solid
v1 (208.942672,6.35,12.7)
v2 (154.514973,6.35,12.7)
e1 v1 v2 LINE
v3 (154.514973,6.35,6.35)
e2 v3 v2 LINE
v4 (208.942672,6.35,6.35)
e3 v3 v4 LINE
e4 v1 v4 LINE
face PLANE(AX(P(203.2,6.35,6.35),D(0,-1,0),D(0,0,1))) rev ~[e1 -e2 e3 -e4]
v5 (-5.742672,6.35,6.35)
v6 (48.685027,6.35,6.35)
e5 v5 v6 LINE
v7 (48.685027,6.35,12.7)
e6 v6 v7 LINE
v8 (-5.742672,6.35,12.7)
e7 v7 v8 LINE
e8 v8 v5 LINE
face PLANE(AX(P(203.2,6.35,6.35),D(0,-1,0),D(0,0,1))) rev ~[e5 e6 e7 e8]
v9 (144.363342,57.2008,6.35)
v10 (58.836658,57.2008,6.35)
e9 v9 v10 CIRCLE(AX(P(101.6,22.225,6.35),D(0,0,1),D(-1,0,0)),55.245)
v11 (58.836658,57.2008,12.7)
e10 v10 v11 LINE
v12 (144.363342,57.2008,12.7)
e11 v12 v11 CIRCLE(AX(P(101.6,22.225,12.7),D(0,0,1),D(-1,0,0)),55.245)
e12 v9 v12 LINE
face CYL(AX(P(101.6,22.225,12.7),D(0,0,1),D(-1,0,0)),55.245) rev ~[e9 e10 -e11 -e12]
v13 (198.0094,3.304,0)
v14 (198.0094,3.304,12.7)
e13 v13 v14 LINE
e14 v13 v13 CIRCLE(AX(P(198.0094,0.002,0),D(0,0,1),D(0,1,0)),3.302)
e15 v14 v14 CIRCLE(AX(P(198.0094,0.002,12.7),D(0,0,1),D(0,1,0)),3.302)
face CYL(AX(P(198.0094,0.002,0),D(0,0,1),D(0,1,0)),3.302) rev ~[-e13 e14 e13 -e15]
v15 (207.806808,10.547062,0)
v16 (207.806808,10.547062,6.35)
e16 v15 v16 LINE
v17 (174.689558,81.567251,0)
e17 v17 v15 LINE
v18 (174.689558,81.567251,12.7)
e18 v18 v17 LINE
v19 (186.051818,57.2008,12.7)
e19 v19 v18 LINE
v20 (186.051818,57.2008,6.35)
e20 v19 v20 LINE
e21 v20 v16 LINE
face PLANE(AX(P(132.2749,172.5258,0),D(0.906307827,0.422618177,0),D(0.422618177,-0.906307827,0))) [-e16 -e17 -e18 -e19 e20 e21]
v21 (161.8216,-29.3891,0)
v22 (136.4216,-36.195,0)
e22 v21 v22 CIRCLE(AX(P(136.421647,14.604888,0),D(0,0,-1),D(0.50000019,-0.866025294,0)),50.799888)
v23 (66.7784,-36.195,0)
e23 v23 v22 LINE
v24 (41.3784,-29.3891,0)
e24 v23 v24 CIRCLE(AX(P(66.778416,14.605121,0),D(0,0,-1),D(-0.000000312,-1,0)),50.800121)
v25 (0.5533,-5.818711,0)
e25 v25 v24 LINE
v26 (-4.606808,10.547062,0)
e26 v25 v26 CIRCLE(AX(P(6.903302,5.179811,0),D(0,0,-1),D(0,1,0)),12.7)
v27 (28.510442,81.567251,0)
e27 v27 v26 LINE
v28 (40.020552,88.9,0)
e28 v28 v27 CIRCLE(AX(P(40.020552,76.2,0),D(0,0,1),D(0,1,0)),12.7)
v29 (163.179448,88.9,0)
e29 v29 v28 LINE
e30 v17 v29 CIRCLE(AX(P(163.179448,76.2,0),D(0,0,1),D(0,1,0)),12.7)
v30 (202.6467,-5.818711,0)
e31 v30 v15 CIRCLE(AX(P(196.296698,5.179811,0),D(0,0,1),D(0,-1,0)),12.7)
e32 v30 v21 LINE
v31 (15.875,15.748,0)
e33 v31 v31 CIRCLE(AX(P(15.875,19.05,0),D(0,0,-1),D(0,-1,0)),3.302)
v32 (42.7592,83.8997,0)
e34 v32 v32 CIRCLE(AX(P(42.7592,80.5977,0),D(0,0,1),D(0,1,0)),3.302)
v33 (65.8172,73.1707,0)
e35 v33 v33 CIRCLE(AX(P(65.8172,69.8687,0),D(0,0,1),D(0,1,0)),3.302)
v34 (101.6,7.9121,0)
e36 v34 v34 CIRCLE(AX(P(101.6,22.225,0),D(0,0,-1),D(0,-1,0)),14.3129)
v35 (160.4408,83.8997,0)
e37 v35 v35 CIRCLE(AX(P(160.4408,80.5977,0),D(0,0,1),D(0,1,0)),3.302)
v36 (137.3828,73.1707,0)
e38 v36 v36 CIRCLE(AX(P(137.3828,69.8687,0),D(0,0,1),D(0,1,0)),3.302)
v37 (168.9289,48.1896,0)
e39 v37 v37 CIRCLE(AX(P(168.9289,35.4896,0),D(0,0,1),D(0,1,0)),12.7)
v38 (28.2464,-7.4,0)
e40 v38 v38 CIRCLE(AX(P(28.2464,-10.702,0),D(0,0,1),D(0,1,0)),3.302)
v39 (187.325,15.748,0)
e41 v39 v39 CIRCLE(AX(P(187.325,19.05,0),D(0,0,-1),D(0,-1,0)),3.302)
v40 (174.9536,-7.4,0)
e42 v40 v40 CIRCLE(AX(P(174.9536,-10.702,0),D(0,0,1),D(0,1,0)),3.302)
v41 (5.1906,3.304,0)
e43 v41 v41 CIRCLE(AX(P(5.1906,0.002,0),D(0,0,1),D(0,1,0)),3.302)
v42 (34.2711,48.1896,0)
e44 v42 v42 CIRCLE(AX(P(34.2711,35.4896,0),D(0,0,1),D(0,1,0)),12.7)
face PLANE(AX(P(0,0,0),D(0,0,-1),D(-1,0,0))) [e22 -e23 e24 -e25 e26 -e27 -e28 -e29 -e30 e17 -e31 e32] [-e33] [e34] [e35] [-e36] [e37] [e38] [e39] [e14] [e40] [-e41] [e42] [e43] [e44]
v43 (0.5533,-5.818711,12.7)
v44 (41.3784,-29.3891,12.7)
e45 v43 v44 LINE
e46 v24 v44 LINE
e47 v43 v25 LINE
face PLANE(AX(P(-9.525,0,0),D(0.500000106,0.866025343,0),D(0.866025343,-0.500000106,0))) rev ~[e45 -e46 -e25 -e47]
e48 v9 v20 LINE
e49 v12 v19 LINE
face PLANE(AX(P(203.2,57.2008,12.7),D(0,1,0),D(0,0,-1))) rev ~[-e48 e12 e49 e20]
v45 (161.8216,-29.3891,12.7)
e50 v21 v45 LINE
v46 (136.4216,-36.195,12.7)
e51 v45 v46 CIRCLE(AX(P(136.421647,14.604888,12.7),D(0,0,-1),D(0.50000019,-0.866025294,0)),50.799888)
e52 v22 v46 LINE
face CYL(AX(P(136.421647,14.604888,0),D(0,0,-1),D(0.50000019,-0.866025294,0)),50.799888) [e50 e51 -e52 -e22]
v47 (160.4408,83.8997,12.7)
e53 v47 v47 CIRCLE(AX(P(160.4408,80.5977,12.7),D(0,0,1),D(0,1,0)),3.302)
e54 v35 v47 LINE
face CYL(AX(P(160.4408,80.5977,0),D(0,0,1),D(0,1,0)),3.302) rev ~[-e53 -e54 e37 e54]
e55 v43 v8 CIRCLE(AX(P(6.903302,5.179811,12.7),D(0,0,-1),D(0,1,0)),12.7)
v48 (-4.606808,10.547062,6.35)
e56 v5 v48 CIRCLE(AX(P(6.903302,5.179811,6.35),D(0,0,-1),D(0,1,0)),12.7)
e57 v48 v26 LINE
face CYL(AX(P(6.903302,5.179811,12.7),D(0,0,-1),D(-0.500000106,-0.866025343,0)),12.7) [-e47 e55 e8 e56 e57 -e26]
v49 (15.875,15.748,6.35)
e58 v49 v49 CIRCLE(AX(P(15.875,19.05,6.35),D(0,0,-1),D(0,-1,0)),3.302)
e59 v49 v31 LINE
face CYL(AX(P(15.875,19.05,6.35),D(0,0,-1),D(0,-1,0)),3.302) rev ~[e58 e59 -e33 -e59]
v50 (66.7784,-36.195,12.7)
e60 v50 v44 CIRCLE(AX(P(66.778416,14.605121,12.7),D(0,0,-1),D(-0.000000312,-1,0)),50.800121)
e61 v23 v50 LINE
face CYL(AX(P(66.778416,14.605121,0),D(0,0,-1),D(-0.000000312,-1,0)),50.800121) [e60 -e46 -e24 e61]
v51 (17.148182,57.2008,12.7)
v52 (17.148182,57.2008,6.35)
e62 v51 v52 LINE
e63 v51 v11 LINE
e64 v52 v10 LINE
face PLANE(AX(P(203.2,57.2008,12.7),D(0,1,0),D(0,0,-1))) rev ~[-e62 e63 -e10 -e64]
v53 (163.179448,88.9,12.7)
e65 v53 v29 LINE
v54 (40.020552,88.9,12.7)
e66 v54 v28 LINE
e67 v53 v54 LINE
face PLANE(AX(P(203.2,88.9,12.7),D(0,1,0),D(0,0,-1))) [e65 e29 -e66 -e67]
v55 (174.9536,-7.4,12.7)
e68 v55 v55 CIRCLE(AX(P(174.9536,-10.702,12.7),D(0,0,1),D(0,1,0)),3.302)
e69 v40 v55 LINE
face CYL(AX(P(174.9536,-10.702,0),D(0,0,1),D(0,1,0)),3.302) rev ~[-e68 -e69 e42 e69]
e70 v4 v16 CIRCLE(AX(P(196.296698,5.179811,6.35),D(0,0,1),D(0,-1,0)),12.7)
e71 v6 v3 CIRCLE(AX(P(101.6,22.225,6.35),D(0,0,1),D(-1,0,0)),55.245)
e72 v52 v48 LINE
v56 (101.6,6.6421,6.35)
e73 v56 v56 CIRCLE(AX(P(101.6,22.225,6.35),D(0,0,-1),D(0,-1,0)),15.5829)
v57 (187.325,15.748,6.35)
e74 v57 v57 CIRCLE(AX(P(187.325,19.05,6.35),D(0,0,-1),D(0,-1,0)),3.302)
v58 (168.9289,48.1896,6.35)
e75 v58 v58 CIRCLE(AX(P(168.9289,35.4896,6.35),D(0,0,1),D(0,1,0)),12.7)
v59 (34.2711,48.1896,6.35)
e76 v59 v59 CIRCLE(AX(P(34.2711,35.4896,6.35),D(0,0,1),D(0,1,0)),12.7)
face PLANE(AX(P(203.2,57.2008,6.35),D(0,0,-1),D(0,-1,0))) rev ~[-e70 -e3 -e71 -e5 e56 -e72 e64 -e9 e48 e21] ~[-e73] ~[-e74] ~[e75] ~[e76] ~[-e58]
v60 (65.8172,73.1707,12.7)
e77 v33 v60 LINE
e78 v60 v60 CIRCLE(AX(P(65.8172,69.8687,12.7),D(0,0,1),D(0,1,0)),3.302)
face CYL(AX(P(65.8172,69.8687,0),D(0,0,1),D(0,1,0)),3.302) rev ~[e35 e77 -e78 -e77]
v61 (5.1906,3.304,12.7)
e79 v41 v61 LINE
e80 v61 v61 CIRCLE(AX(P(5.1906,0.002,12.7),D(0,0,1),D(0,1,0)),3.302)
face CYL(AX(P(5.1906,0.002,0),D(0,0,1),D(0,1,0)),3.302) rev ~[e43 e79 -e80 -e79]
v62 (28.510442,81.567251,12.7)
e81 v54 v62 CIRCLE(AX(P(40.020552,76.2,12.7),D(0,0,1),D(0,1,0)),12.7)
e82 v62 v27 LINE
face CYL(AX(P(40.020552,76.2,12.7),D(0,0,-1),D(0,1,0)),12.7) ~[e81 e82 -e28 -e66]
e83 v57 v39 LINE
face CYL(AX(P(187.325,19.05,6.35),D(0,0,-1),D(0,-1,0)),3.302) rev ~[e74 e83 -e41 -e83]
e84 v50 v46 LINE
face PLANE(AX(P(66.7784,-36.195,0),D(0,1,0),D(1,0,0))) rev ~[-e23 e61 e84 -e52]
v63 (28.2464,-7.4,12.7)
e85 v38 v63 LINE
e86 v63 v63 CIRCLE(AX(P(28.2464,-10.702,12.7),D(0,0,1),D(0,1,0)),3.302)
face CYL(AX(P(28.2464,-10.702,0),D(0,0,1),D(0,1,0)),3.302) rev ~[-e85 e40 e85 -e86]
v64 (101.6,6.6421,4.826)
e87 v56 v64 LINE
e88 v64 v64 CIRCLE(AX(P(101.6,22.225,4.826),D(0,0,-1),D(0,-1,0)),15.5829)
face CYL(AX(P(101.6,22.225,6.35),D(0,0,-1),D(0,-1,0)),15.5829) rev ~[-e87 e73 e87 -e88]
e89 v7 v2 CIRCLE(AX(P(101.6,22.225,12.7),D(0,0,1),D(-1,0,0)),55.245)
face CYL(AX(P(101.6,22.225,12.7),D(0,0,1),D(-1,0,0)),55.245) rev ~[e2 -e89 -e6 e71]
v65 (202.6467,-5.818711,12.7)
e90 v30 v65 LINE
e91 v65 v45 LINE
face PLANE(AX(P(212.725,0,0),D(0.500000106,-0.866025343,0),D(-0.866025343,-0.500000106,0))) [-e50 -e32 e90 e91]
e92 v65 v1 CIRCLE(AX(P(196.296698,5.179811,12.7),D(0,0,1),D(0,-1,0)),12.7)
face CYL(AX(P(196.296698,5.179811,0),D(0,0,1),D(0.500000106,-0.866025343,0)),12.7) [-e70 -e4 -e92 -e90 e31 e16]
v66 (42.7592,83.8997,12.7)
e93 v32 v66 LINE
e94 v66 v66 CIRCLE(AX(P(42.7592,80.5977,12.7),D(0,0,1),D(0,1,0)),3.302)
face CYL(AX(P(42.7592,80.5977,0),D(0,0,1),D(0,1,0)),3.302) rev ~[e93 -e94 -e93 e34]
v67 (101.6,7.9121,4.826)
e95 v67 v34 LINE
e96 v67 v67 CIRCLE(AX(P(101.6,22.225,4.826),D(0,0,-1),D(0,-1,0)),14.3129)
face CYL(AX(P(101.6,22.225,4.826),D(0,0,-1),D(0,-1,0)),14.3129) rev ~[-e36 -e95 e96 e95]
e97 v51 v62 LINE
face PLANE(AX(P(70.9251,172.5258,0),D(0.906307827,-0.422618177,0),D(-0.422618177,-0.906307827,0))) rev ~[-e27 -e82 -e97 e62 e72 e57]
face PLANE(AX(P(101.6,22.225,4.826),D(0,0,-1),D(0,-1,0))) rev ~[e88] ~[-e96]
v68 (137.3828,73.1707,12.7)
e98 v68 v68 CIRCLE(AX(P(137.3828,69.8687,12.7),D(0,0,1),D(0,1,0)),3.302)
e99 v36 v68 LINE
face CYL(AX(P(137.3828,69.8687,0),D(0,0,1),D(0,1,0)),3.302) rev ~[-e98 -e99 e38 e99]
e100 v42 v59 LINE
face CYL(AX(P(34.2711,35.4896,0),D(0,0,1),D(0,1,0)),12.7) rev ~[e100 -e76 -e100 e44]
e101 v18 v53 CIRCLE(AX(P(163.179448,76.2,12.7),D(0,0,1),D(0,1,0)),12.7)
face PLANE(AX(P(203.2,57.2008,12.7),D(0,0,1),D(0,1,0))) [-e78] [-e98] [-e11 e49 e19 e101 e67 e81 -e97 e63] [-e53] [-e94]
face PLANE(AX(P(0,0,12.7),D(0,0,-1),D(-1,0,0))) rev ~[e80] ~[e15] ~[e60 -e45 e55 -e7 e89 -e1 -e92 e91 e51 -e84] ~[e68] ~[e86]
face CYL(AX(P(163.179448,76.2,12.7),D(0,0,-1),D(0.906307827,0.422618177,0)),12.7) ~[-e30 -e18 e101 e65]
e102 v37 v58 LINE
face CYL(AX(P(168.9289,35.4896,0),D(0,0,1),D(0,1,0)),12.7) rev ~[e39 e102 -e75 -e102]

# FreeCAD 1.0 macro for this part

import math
import FreeCAD as App
import Part
import Sketcher
Q = App.Units.Quantity


def edges_at(feature, points):
    """Names of the edges that pass closest to the given points."""
    edges = feature.Shape.Edges
    near = lambda p: min(range(len(edges)), key=lambda i: edges[i].distToShape(Part.Vertex(*p))[0])
    return sorted({f"Edge{near(p) + 1}" for p in points})

doc = App.newDocument("Part")
body = doc.addObject("PartDesign::Body", "Body")

sketch1 = body.newObject("Sketcher::SketchObject", "Sketch")
sketch1.AttachmentSupport = (doc.getObject("XY_Plane"), [""])
sketch1.MapMode = "FlatFace"
sketch1.addGeometry([
    Part.LineSegment(App.Vector(0, 64, 0), App.Vector(0, 0, 0)),
    Part.LineSegment(App.Vector(0, 0, 0), App.Vector(203, 0, 0)),
    Part.LineSegment(App.Vector(203, 0, 0), App.Vector(203, 64, 0)),
    Part.LineSegment(App.Vector(203, 64, 0), App.Vector(0, 64, 0)),
], False)
sketch1.addConstraint([
    Sketcher.Constraint("Coincident", 0, 2, 1, 1),
    Sketcher.Constraint("Coincident", 1, 2, 2, 1),
    Sketcher.Constraint("Coincident", 2, 2, 3, 1),
    Sketcher.Constraint("Coincident", 3, 2, 0, 1),
    Sketcher.Constraint("Vertical", 0),
    Sketcher.Constraint("Horizontal", 1),
    Sketcher.Constraint("Vertical", 2),
    Sketcher.Constraint("Horizontal", 3),
    Sketcher.Constraint("Coincident", 0, 2, -1, 1),
    Sketcher.Constraint("DistanceX", 1, 1, 1, 2, Q("8 in")),
    Sketcher.Constraint("DistanceY", 0, 2, 0, 1, Q("2.5 in")),
])
pad1 = body.newObject("PartDesign::Pad", "Pad")
pad1.Profile = sketch1
pad1.Length = Q("0.5 in")

sketch2 = body.newObject("Sketcher::SketchObject", "Sketch001")
sketch2.AttachmentSupport = (doc.getObject("XY_Plane"), [""])
sketch2.MapMode = "FlatFace"
sketch2.AttachmentOffset = App.Placement(App.Vector(0, 0, 0.5 * 25.4), App.Rotation())
sketch2.addGeometry([
    Part.LineSegment(App.Vector(203, 57, 0), App.Vector(0, 57, 0)),
    Part.LineSegment(App.Vector(0, 57, 0), App.Vector(0, 6, 0)),
    Part.LineSegment(App.Vector(0, 6, 0), App.Vector(203, 6, 0)),
    Part.LineSegment(App.Vector(203, 6, 0), App.Vector(203, 57, 0)),
], False)
sketch2.addConstraint([
    Sketcher.Constraint("Coincident", 0, 2, 1, 1),
    Sketcher.Constraint("Coincident", 1, 2, 2, 1),
    Sketcher.Constraint("Coincident", 2, 2, 3, 1),
    Sketcher.Constraint("Coincident", 3, 2, 0, 1),
    Sketcher.Constraint("Horizontal", 0),
    Sketcher.Constraint("Vertical", 1),
    Sketcher.Constraint("Horizontal", 2),
    Sketcher.Constraint("Vertical", 3),
    Sketcher.Constraint("PointOnObject", 0, 2, -2),
    Sketcher.Constraint("DistanceX", 0, 2, 0, 1, Q("8 in")),
    Sketcher.Constraint("DistanceY", -1, 1, 1, 2, Q("0.25 in")),
    Sketcher.Constraint("DistanceY", 1, 2, 1, 1, Q("2.002 in")),
])
pocket1 = body.newObject("PartDesign::Pocket", "Pocket")
pocket1.Profile = sketch2
pocket1.Length = Q("0.25 in")

sketch3 = body.newObject("Sketcher::SketchObject", "Sketch002")
sketch3.AttachmentSupport = (doc.getObject("XY_Plane"), [""])
sketch3.MapMode = "FlatFace"
sketch3.AttachmentOffset = App.Placement(App.Vector(0, 0, 0.25 * 25.4), App.Rotation())
sketch3.addGeometry(Part.Circle(App.Vector(102, 22, 0), App.Vector(0, 0, 1), 14), False)
sketch3.addConstraint([
    Sketcher.Constraint("Diameter", 0, Q("1.127 in")),
    Sketcher.Constraint("DistanceX", -1, 1, 0, 3, Q("4 in")),
    Sketcher.Constraint("DistanceY", -1, 1, 0, 3, Q("0.875 in")),
])
doc.recompute()
hole = body.newObject("PartDesign::Hole", "Hole")
hole.Profile = sketch3
hole.ThreadType = "None"
hole.Diameter = Q("1.127 in")
hole.DepthType = "ThroughAll"
hole.HoleCutType = "Counterbore"
hole.HoleCutDiameter = Q("1.227 in")
hole.HoleCutDepth = Q("0.06 in")

sketch4 = body.newObject("Sketcher::SketchObject", "Sketch003")
sketch4.AttachmentSupport = (doc.getObject("XY_Plane"), [""])
sketch4.MapMode = "FlatFace"
sketch4.addGeometry([
    Part.Circle(App.Vector(169, 35, 0), App.Vector(0, 0, 1), 13),
    Part.Circle(App.Vector(34, 35, 0), App.Vector(0, 0, 1), 13),
], False)
sketch4.addConstraint([
    Sketcher.Constraint("Equal", 0, 1),
    Sketcher.Constraint("Horizontal", 0, 3, 1, 3),
    Sketcher.Constraint("Diameter", 0, Q("1 in")),
    Sketcher.Constraint("DistanceX", 1, 3, 0, 3, Q("5.3015 in")),
    Sketcher.Constraint("DistanceX", -1, 1, 0, 3, 168.929),
    Sketcher.Constraint("DistanceY", -1, 1, 0, 3, 35.4896),
])
doc.recompute()
hole2 = body.newObject("PartDesign::Hole", "Hole001")
hole2.Profile = sketch4
hole2.ThreadType = "None"
hole2.Diameter = Q("1 in")
hole2.DepthType = "ThroughAll"
hole2.Reversed = True

sketch5 = body.newObject("Sketcher::SketchObject", "Sketch004")
sketch5.AttachmentSupport = (doc.getObject("XZ_Plane"), [""])
sketch5.MapMode = "FlatFace"
sketch5.AttachmentOffset = App.Placement(App.Vector(0, 0, -2.5 * 25.4), App.Rotation())
sketch5.addGeometry([
    Part.LineSegment(App.Vector(0, 0, 0), App.Vector(0, 13, 0)),
    Part.LineSegment(App.Vector(0, 13, 0), App.Vector(203, 13, 0)),
    Part.LineSegment(App.Vector(203, 13, 0), App.Vector(203, 0, 0)),
    Part.LineSegment(App.Vector(203, 0, 0), App.Vector(0, 0, 0)),
], False)
sketch5.addConstraint([
    Sketcher.Constraint("Coincident", 0, 2, 1, 1),
    Sketcher.Constraint("Coincident", 1, 2, 2, 1),
    Sketcher.Constraint("Coincident", 2, 2, 3, 1),
    Sketcher.Constraint("Coincident", 3, 2, 0, 1),
    Sketcher.Constraint("Vertical", 0),
    Sketcher.Constraint("Horizontal", 1),
    Sketcher.Constraint("Vertical", 2),
    Sketcher.Constraint("Horizontal", 3),
    Sketcher.Constraint("Coincident", 3, 2, -1, 1),
    Sketcher.Constraint("DistanceX", 1, 1, 1, 2, Q("8 in")),
    Sketcher.Constraint("DistanceY", 0, 1, 0, 2, Q("0.5 in")),
])
pad2 = body.newObject("PartDesign::Pad", "Pad001")
pad2.Profile = sketch5
pad2.Length = Q("1 in")
pad2.Reversed = True

sketch6 = body.newObject("Sketcher::SketchObject", "Sketch005")
sketch6.AttachmentSupport = (doc.getObject("YZ_Plane"), [""])
sketch6.MapMode = "FlatFace"
sketch6.addGeometry([
    Part.LineSegment(App.Vector(6, 6, 0), App.Vector(57, 6, 0)),
    Part.LineSegment(App.Vector(57, 6, 0), App.Vector(57, 13, 0)),
    Part.LineSegment(App.Vector(57, 13, 0), App.Vector(89, 13, 0)),
    Part.LineSegment(App.Vector(89, 13, 0), App.Vector(89, 0, 0)),
    Part.LineSegment(App.Vector(89, 0, 0), App.Vector(0, 0, 0)),
    Part.LineSegment(App.Vector(0, 0, 0), App.Vector(0, 13, 0)),
    Part.LineSegment(App.Vector(0, 13, 0), App.Vector(6, 13, 0)),
    Part.LineSegment(App.Vector(6, 13, 0), App.Vector(6, 6, 0)),
], False)
sketch6.addConstraint([
    Sketcher.Constraint("Coincident", 0, 2, 1, 1),
    Sketcher.Constraint("Coincident", 1, 2, 2, 1),
    Sketcher.Constraint("Coincident", 2, 2, 3, 1),
    Sketcher.Constraint("Coincident", 3, 2, 4, 1),
    Sketcher.Constraint("Coincident", 4, 2, 5, 1),
    Sketcher.Constraint("Coincident", 5, 2, 6, 1),
    Sketcher.Constraint("Coincident", 6, 2, 7, 1),
    Sketcher.Constraint("Coincident", 7, 2, 0, 1),
    Sketcher.Constraint("Horizontal", 0),
    Sketcher.Constraint("Vertical", 1),
    Sketcher.Constraint("Horizontal", 2),
    Sketcher.Constraint("Vertical", 3),
    Sketcher.Constraint("Horizontal", 4),
    Sketcher.Constraint("Vertical", 5),
    Sketcher.Constraint("Horizontal", 6),
    Sketcher.Constraint("Vertical", 7),
    Sketcher.Constraint("Coincident", 4, 2, -1, 1),
    Sketcher.Constraint("Horizontal", 2, 2, 5, 2),
    Sketcher.Constraint("Equal", 6, 1),
    Sketcher.Constraint("DistanceX", 4, 2, 4, 1, Q("3.5 in")),
    Sketcher.Constraint("DistanceY", 3, 2, 3, 1, Q("0.5 in")),
    Sketcher.Constraint("DistanceX", 6, 1, 6, 2, Q("0.25 in")),
    Sketcher.Constraint("DistanceX", 0, 1, 0, 2, Q("2.002 in")),
])
pad3 = body.newObject("PartDesign::Pad", "Pad002")
pad3.Profile = sketch6
pad3.Length = Q("0.375 in")
pad3.Reversed = True

sketch7 = body.newObject("Sketcher::SketchObject", "Sketch006")
sketch7.AttachmentSupport = (doc.getObject("YZ_Plane"), [""])
sketch7.MapMode = "FlatFace"
sketch7.AttachmentOffset = App.Placement(App.Vector(0, 0, 8 * 25.4), App.Rotation())
sketch7.addGeometry([
    Part.LineSegment(App.Vector(89, 13, 0), App.Vector(57, 13, 0)),
    Part.LineSegment(App.Vector(57, 13, 0), App.Vector(57, 6, 0)),
    Part.LineSegment(App.Vector(57, 6, 0), App.Vector(6, 6, 0)),
    Part.LineSegment(App.Vector(6, 6, 0), App.Vector(6, 13, 0)),
    Part.LineSegment(App.Vector(6, 13, 0), App.Vector(0, 13, 0)),
    Part.LineSegment(App.Vector(0, 13, 0), App.Vector(0, 0, 0)),
    Part.LineSegment(App.Vector(0, 0, 0), App.Vector(89, 0, 0)),
    Part.LineSegment(App.Vector(89, 0, 0), App.Vector(89, 13, 0)),
], False)
sketch7.addConstraint([
    Sketcher.Constraint("Coincident", 0, 2, 1, 1),
    Sketcher.Constraint("Coincident", 1, 2, 2, 1),
    Sketcher.Constraint("Coincident", 2, 2, 3, 1),
    Sketcher.Constraint("Coincident", 3, 2, 4, 1),
    Sketcher.Constraint("Coincident", 4, 2, 5, 1),
    Sketcher.Constraint("Coincident", 5, 2, 6, 1),
    Sketcher.Constraint("Coincident", 6, 2, 7, 1),
    Sketcher.Constraint("Coincident", 7, 2, 0, 1),
    Sketcher.Constraint("Horizontal", 0),
    Sketcher.Constraint("Vertical", 1),
    Sketcher.Constraint("Horizontal", 2),
    Sketcher.Constraint("Vertical", 3),
    Sketcher.Constraint("Horizontal", 4),
    Sketcher.Constraint("Vertical", 5),
    Sketcher.Constraint("Horizontal", 6),
    Sketcher.Constraint("Vertical", 7),
    Sketcher.Constraint("Coincident", 5, 2, -1, 1),
    Sketcher.Constraint("Horizontal", 0, 2, 3, 2),
    Sketcher.Constraint("Equal", 4, 1),
    Sketcher.Constraint("DistanceX", 6, 1, 6, 2, Q("3.5 in")),
    Sketcher.Constraint("DistanceY", 5, 2, 5, 1, Q("0.5 in")),
    Sketcher.Constraint("DistanceX", 4, 2, 4, 1, Q("0.25 in")),
    Sketcher.Constraint("DistanceX", 0, 2, 0, 1, Q("1.248 in")),
])
pad4 = body.newObject("PartDesign::Pad", "Pad003")
pad4.Profile = sketch7
pad4.Length = Q("0.375 in")

sketch8 = body.newObject("Sketcher::SketchObject", "Sketch007")
sketch8.AttachmentSupport = (doc.getObject("XY_Plane"), [""])
sketch8.MapMode = "FlatFace"
sketch8.addGeometry([
    Part.LineSegment(App.Vector(41, -29, 0), App.Vector(-10, 0, 0)),
    Part.LineSegment(App.Vector(-10, 0, 0), App.Vector(213, 0, 0)),
    Part.LineSegment(App.Vector(213, 0, 0), App.Vector(162, -29, 0)),
    Part.ArcOfCircle(Part.Circle(App.Vector(136, 15, 0), App.Vector(0, 0, 1), 51), math.radians(-90), math.radians(-60)),
    Part.LineSegment(App.Vector(136, -36, 0), App.Vector(67, -36, 0)),
    Part.ArcOfCircle(Part.Circle(App.Vector(67, 15, 0), App.Vector(0, 0, 1), 51), math.radians(-120), math.radians(-90)),
], False)
sketch8.addConstraint([
    Sketcher.Constraint("Coincident", 0, 2, 1, 1),
    Sketcher.Constraint("Coincident", 1, 2, 2, 1),
    Sketcher.Constraint("Tangent", 2, 2, 3, 2),
    Sketcher.Constraint("Tangent", 3, 1, 4, 1),
    Sketcher.Constraint("Tangent", 4, 2, 5, 2),
    Sketcher.Constraint("Tangent", 5, 1, 0, 1),
    Sketcher.Constraint("Horizontal", 1),
    Sketcher.Constraint("Horizontal", 4),
    Sketcher.Constraint("Equal", 3, 5),
    Sketcher.Constraint("PointOnObject", 0, 2, -1),
    Sketcher.Constraint("Horizontal", 2, 2, 5, 1),
    Sketcher.Constraint("Radius", 3, Q("2 in")),
    Sketcher.Constraint("Angle", 0, Q("150 deg")),
    Sketcher.Constraint("DistanceX", 1, 1, 1, 2, Q("8.75 in")),
    Sketcher.Constraint("DistanceY", -1, 1, 3, 3, Q("0.575 in")),
    Sketcher.Constraint("DistanceX", 0, 2, -1, 1, Q("0.375 in")),
])
pad5 = body.newObject("PartDesign::Pad", "Pad004")
pad5.Profile = sketch8
pad5.Length = Q("0.5 in")

sketch9 = body.newObject("Sketcher::SketchObject", "Sketch008")
sketch9.AttachmentSupport = (doc.getObject("XY_Plane"), [""])
sketch9.MapMode = "FlatFace"
sketch9.AttachmentOffset = App.Placement(App.Vector(0, 0, 0.5 * 25.4), App.Rotation())
sketch9.addGeometry([
    Part.Circle(App.Vector(102, 22, 0), App.Vector(0, 0, 1), 55),
    Part.Circle(App.Vector(102, 22, 0), App.Vector(0, 0, 1), 16),
], False)
sketch9.addConstraint([
    Sketcher.Constraint("Coincident", 1, 3, 0, 3),
    Sketcher.Constraint("Diameter", 0, Q("4.35 in")),
    Sketcher.Constraint("Diameter", 1, Q("1.227 in")),
    Sketcher.Constraint("DistanceX", -1, 1, 0, 3, Q("4 in")),
    Sketcher.Constraint("DistanceY", -1, 1, 0, 3, Q("0.875 in")),
])
pocket2 = body.newObject("PartDesign::Pocket", "Pocket001")
pocket2.Profile = sketch9
pocket2.Length = Q("0.25 in")
doc.recompute()

fillet = body.newObject("PartDesign::Fillet", "Fillet")
fillet.Base = (pocket2, edges_at(pocket2, [(-9.525, 88.9, 6.35), (212.725, 88.9, 6.35)]))
fillet.Radius = Q("0.5 in")

sketch10 = body.newObject("Sketcher::SketchObject", "Sketch009")
sketch10.AttachmentSupport = (doc.getObject("XY_Plane"), [""])
sketch10.MapMode = "FlatFace"
sketch10.addGeometry([
    Part.Circle(App.Vector(42.8, 80.6, 0), App.Vector(0, 0, 1), 3.3),
    Part.Circle(App.Vector(5.2, 0, 0), App.Vector(0, 0, 1), 3.3),
    Part.Circle(App.Vector(65.8, 69.9, 0), App.Vector(0, 0, 1), 3.3),
    Part.Circle(App.Vector(28.2, -10.7, 0), App.Vector(0, 0, 1), 3.3),
    Part.Circle(App.Vector(160.4, 80.6, 0), App.Vector(0, 0, 1), 3.3),
    Part.Circle(App.Vector(137.4, 69.9, 0), App.Vector(0, 0, 1), 3.3),
    Part.Circle(App.Vector(175, -10.7, 0), App.Vector(0, 0, 1), 3.3),
    Part.Circle(App.Vector(198, 0, 0), App.Vector(0, 0, 1), 3.3),
], False)
sketch10.addConstraint([
    Sketcher.Constraint("Equal", 0, 1),
    Sketcher.Constraint("Equal", 1, 2),
    Sketcher.Constraint("Equal", 2, 3),
    Sketcher.Constraint("Equal", 3, 4),
    Sketcher.Constraint("Equal", 4, 5),
    Sketcher.Constraint("Equal", 5, 6),
    Sketcher.Constraint("Equal", 6, 7),
    Sketcher.Constraint("Horizontal", 0, 3, 4, 3),
    Sketcher.Constraint("Horizontal", 2, 3, 5, 3),
    Sketcher.Constraint("Horizontal", 3, 3, 6, 3),
    Sketcher.Constraint("Horizontal", 1, 3, 7, 3),
    Sketcher.Constraint("Diameter", 0, Q("0.26 in")),
    Sketcher.Constraint("DistanceX", 0, 3, 2, 3, Q("0.9078 in")),
    Sketcher.Constraint("DistanceY", 2, 3, 0, 3, Q("0.4224 in")),
    Sketcher.Constraint("DistanceX", 1, 3, 3, 3, Q("0.9077 in")),
    Sketcher.Constraint("DistanceX", 3, 3, 4, 3, Q("5.2045 in")),
    Sketcher.Constraint("DistanceX", 5, 3, 4, 3, Q("0.9078 in")),
    Sketcher.Constraint("DistanceX", 2, 3, 6, 3, Q("4.2967 in")),
    Sketcher.Constraint("DistanceX", 6, 3, 7, 3, Q("0.9077 in")),
    Sketcher.Constraint("DistanceX", -1, 1, 0, 3, 42.7592),
    Sketcher.Constraint("DistanceY", -1, 1, 0, 3, 80.5977),
    Sketcher.Constraint("DistanceX", -1, 1, 1, 3, 5.1906),
    Sketcher.Constraint("DistanceY", -1, 1, 1, 3, 0.002),
    Sketcher.Constraint("DistanceY", 3, 3, -1, 1, 10.702),
])
doc.recompute()
hole3 = body.newObject("PartDesign::Hole", "Hole002")
hole3.Profile = sketch10
hole3.ThreadType = "None"
hole3.Diameter = Q("0.26 in")
hole3.DepthType = "ThroughAll"
hole3.Reversed = True

sketch11 = body.newObject("Sketcher::SketchObject", "Sketch010")
sketch11.AttachmentSupport = (doc.getObject("XY_Plane"), [""])
sketch11.MapMode = "FlatFace"
sketch11.addGeometry([
    Part.LineSegment(App.Vector(132, 173, 0), App.Vector(236, 173, 0)),
    Part.LineSegment(App.Vector(236, 173, 0), App.Vector(236, -50, 0)),
    Part.LineSegment(App.Vector(236, -50, 0), App.Vector(132, 173, 0)),
    Part.LineSegment(App.Vector(-33, -50, 0), App.Vector(-33, 173, 0)),
    Part.LineSegment(App.Vector(-33, 173, 0), App.Vector(71, 173, 0)),
    Part.LineSegment(App.Vector(71, 173, 0), App.Vector(-33, -50, 0)),
], False)
sketch11.addConstraint([
    Sketcher.Constraint("Coincident", 0, 2, 1, 1),
    Sketcher.Constraint("Coincident", 1, 2, 2, 1),
    Sketcher.Constraint("Coincident", 2, 2, 0, 1),
    Sketcher.Constraint("Coincident", 3, 2, 4, 1),
    Sketcher.Constraint("Coincident", 4, 2, 5, 1),
    Sketcher.Constraint("Coincident", 5, 2, 3, 1),
    Sketcher.Constraint("Horizontal", 0),
    Sketcher.Constraint("Vertical", 1),
    Sketcher.Constraint("Vertical", 3),
    Sketcher.Constraint("Horizontal", 4),
    Sketcher.Constraint("Horizontal", 2, 2, 3, 2),
    Sketcher.Constraint("Horizontal", 1, 2, 5, 2),
    Sketcher.Constraint("Equal", 0, 4),
    Sketcher.Constraint("Angle", 2, Q("115 deg")),
    Sketcher.Constraint("DistanceX", 0, 1, 0, 2, 103.7213),
    Sketcher.Constraint("DistanceX", -1, 1, 0, 2, Q("9.2912 in")),
    Sketcher.Constraint("DistanceX", 3, 2, -1, 1, Q("1.2912 in")),
    Sketcher.Constraint("DistanceY", -1, 1, 0, 2, 172.5258),
])
pocket3 = body.newObject("PartDesign::Pocket", "Pocket002")
pocket3.Profile = sketch11
pocket3.Length = Q("1 in")
pocket3.Reversed = True
doc.recompute()

fillet2 = body.newObject("PartDesign::Fillet", "Fillet001")
fillet2.Base = (pocket3, edges_at(pocket3, [
    (171.27, 88.9, 6.35),
    (212.725, 0, 6.35),
    (-9.525, 0, 6.35),
    (31.93, 88.9, 6.35),
]))
fillet2.Radius = Q("0.5 in")

sketch12 = body.newObject("Sketcher::SketchObject", "Sketch011")
sketch12.AttachmentSupport = (doc.getObject("XY_Plane"), [""])
sketch12.MapMode = "FlatFace"
sketch12.AttachmentOffset = App.Placement(App.Vector(0, 0, 0.25 * 25.4), App.Rotation())
sketch12.addGeometry([
    Part.Circle(App.Vector(187.3, 19.1, 0), App.Vector(0, 0, 1), 3.3),
    Part.Circle(App.Vector(15.9, 19.1, 0), App.Vector(0, 0, 1), 3.3),
], False)
sketch12.addConstraint([
    Sketcher.Constraint("Equal", 0, 1),
    Sketcher.Constraint("Horizontal", 0, 3, 1, 3),
    Sketcher.Constraint("Diameter", 0, Q("0.26 in")),
    Sketcher.Constraint("DistanceY", -1, 1, 0, 3, Q("0.75 in")),
    Sketcher.Constraint("DistanceX", 1, 3, 0, 3, Q("6.75 in")),
    Sketcher.Constraint("DistanceX", -1, 1, 0, 3, Q("7.375 in")),
])
doc.recompute()
hole4 = body.newObject("PartDesign::Hole", "Hole003")
hole4.Profile = sketch12
hole4.ThreadType = "None"
hole4.Diameter = Q("0.26 in")
hole4.DepthType = "ThroughAll"

doc.recompute()
